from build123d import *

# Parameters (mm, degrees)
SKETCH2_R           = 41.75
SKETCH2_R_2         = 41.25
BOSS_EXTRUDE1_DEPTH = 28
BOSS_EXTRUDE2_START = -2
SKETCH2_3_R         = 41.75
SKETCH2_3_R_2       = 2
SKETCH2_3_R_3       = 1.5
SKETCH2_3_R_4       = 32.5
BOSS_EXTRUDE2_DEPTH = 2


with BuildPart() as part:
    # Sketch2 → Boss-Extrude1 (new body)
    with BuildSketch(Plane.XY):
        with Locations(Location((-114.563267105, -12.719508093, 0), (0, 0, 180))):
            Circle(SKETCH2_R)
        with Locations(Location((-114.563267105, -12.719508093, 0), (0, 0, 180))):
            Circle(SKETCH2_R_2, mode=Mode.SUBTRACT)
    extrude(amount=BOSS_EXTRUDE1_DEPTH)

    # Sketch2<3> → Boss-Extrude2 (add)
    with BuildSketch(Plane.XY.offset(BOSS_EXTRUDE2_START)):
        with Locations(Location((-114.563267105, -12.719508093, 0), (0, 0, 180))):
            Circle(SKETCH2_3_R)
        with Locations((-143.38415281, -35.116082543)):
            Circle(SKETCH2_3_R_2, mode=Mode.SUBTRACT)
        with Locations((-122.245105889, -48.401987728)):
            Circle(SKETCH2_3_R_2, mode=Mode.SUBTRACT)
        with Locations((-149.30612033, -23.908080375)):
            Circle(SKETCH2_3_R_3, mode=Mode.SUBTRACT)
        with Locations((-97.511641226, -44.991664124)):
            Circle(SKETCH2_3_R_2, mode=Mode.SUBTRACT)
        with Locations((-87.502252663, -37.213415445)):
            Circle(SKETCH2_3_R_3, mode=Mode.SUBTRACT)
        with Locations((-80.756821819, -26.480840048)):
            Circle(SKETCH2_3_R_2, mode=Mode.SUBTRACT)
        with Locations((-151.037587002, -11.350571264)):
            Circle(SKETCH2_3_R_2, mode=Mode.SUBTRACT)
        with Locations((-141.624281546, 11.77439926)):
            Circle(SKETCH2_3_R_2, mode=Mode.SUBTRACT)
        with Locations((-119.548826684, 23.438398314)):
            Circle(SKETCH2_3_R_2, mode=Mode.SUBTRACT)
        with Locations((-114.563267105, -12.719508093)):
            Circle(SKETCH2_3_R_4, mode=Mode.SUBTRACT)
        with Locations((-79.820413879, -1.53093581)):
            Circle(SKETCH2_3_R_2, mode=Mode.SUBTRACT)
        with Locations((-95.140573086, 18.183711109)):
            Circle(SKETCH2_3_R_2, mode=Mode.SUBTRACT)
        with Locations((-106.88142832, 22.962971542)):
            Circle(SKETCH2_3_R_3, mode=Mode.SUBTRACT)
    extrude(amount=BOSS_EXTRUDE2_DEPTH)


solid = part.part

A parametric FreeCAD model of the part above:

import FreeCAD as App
import Part
import Sketcher
from FreeCAD import Vector
Q = App.Units.Quantity

doc = App.newDocument("Part")
params = doc.addObject("Spreadsheet::Sheet", "Params")
for row, (alias, value) in enumerate([
    ("sketch1_diameter", "83.5 mm"),
    ("sketch1_diameter2", "82.5 mm"),
    ("pad1_length", "28 mm"),
    ("sketch2_diameter", "4 mm"),
    ("sketch2_diameter2", "3 mm"),
    ("sketch2_diameter3", "65 mm"),
    ("sketch2_diameter4", "83.5 mm"),
    ("pad2_length", "2 mm"),
], start=1):
    params.set(f"A{row}", alias)
    params.set(f"B{row}", "=" + value)
    params.setAlias(f"B{row}", alias)

body = doc.addObject("PartDesign::Body", "Body")

# Sketch on XY plane
sketch1 = doc.addObject("Sketcher::SketchObject", "Sketch")
body.addObject(sketch1)
sketch1.AttachmentSupport = (doc.XY_Plane, [""])
sketch1.MapMode = "FlatFace"
sketch1.addGeometry([
    Part.Circle(Vector(-115, -13, 0), Vector(0, 0, 1), 42),
    Part.Circle(Vector(-115, -13, 0), Vector(0, 0, 1), 41),
], False)
sketch1.addConstraint([
    Sketcher.Constraint("Coincident", 1, 3, 0, 3),
    Sketcher.Constraint("Diameter", 0, Q("83.5 mm")),
    Sketcher.Constraint("Diameter", 1, Q("82.5 mm")),
    Sketcher.Constraint("DistanceY", 0, 3, -1, 1, Q("12.719508 mm")),
    Sketcher.Constraint("DistanceX", 0, 3, -1, 1, Q("114.563267 mm")),
])
sketch1.setExpression("Constraints[1]", "Params.sketch1_diameter")
sketch1.setExpression("Constraints[2]", "Params.sketch1_diameter2")
pad1 = doc.addObject("PartDesign::Pad", "Pad")
body.addObject(pad1)
pad1.Profile = sketch1
pad1.setExpression("Length", "Params.pad1_length")

# Sketch on XY plane
sketch2 = doc.addObject("Sketcher::SketchObject", "Sketch001")
body.addObject(sketch2)
sketch2.AttachmentSupport = (doc.XY_Plane, [""])
sketch2.MapMode = "FlatFace"
sketch2.AttachmentOffset = App.Placement(Vector(0, 0, -2), App.Rotation())
sketch2.addGeometry([
    Part.Circle(Vector(-114.6, -12.7, 0), Vector(0, 0, 1), 41.8),  # 0
    Part.Circle(Vector(-95.1, 18.2, 0), Vector(0, 0, 1), 2),  # 1
    Part.Circle(Vector(-106.9, 23, 0), Vector(0, 0, 1), 1.5),  # 2
    Part.Circle(Vector(-79.8, -1.5, 0), Vector(0, 0, 1), 2),  # 3
    Part.Circle(Vector(-119.5, 23.4, 0), Vector(0, 0, 1), 2),  # 4
    Part.Circle(Vector(-141.6, 11.8, 0), Vector(0, 0, 1), 2),  # 5
    Part.Circle(Vector(-151, -11.4, 0), Vector(0, 0, 1), 2),  # 6
    Part.Circle(Vector(-80.8, -26.5, 0), Vector(0, 0, 1), 2),  # 7
    Part.Circle(Vector(-114.6, -12.7, 0), Vector(0, 0, 1), 32.5),  # 8
    Part.Circle(Vector(-87.5, -37.2, 0), Vector(0, 0, 1), 1.5),  # 9
    Part.Circle(Vector(-97.5, -45, 0), Vector(0, 0, 1), 2),  # 10
    Part.Circle(Vector(-149.3, -23.9, 0), Vector(0, 0, 1), 1.5),  # 11
    Part.Circle(Vector(-122.2, -48.4, 0), Vector(0, 0, 1), 2),  # 12
    Part.Circle(Vector(-143.4, -35.1, 0), Vector(0, 0, 1), 2),  # 13
], False)
sketch2.addConstraint([
    Sketcher.Constraint("Coincident", 8, 3, 0, 3),
    Sketcher.Constraint("Equal", 1, 3),
    Sketcher.Constraint("Equal", 3, 4),
    Sketcher.Constraint("Equal", 4, 5),
    Sketcher.Constraint("Equal", 5, 6),
    Sketcher.Constraint("Equal", 6, 7),
    Sketcher.Constraint("Equal", 2, 9),
    Sketcher.Constraint("Equal", 7, 10),
    Sketcher.Constraint("Equal", 9, 11),
    Sketcher.Constraint("Equal", 10, 12),
    Sketcher.Constraint("Equal", 12, 13),
    Sketcher.Constraint("Diameter", 1, Q("4 mm")),
    Sketcher.Constraint("Diameter", 2, Q("3 mm")),
    Sketcher.Constraint("Diameter", 8, Q("65 mm")),
    Sketcher.Constraint("Diameter", 0, Q("83.5 mm")),
    Sketcher.Constraint("DistanceY", 5, 3, 4, 3, Q("11.663999 mm")),
    Sketcher.Constraint("DistanceY", -1, 1, 4, 3, Q("23.438398 mm")),
    Sketcher.Constraint("DistanceX", 4, 3, 2, 3, Q("12.667398 mm")),
    Sketcher.Constraint("DistanceY", 0, 3, -1, 1, Q("12.719508 mm")),
    Sketcher.Constraint("DistanceY", -1, 1, 1, 3, Q("18.183711 mm")),
    Sketcher.Constraint("DistanceX", 2, 3, -1, 1, Q("106.881428 mm")),
    Sketcher.Constraint("DistanceY", -1, 1, 2, 3, Q("22.962972 mm")),
    Sketcher.Constraint("DistanceX", 5, 3, -1, 1, Q("141.624282 mm")),
    Sketcher.Constraint("DistanceY", 6, 3, -1, 1, Q("11.350571 mm")),
    Sketcher.Constraint("DistanceX", 7, 3, -1, 1, Q("80.756822 mm")),
    Sketcher.Constraint("DistanceY", 7, 3, -1, 1, Q("26.48084 mm")),
    Sketcher.Constraint("DistanceX", 10, 3, -1, 1, Q("97.511641 mm")),
    Sketcher.Constraint("DistanceX", 11, 3, -1, 1, Q("149.30612 mm")),
    Sketcher.Constraint("DistanceY", 11, 3, -1, 1, Q("23.90808 mm")),
    Sketcher.Constraint("DistanceX", 0, 3, 2, 3, Q("7.681839 mm")),
    Sketcher.Constraint("DistanceX", 1, 3, 3, 3, Q("15.320159 mm")),
    Sketcher.Constraint("DistanceX", 5, 3, 1, 3, Q("46.483708 mm")),
    Sketcher.Constraint("DistanceX", 6, 3, 0, 3, Q("36.47432 mm")),
    Sketcher.Constraint("DistanceX", 9, 3, 7, 3, Q("6.745431 mm")),
    Sketcher.Constraint("DistanceY", 9, 3, 3, 3, Q("35.68248 mm")),
    Sketcher.Constraint("DistanceY", 10, 3, 9, 3, Q("7.778249 mm")),
    Sketcher.Constraint("DistanceX", 12, 3, 0, 3, Q("7.681839 mm")),
    Sketcher.Constraint("DistanceY", 12, 3, 0, 3, Q("35.68248 mm")),
    Sketcher.Constraint("DistanceY", 13, 3, 6, 3, Q("23.765511 mm")),
    Sketcher.Constraint("DistanceY", 3, 3, -1, 1, Q("1.530936 mm")),
    Sketcher.Constraint("DistanceX", 13, 3, -1, 1, Q("143.384153 mm")),
])
sketch2.setExpression("Constraints[11]", "Params.sketch2_diameter")
sketch2.setExpression("Constraints[12]", "Params.sketch2_diameter2")
sketch2.setExpression("Constraints[13]", "Params.sketch2_diameter3")
sketch2.setExpression("Constraints[14]", "Params.sketch2_diameter4")
pad2 = doc.addObject("PartDesign::Pad", "Pad001")
body.addObject(pad2)
pad2.Profile = sketch2
pad2.setExpression("Length", "Params.pad2_length")

doc.recompute()
